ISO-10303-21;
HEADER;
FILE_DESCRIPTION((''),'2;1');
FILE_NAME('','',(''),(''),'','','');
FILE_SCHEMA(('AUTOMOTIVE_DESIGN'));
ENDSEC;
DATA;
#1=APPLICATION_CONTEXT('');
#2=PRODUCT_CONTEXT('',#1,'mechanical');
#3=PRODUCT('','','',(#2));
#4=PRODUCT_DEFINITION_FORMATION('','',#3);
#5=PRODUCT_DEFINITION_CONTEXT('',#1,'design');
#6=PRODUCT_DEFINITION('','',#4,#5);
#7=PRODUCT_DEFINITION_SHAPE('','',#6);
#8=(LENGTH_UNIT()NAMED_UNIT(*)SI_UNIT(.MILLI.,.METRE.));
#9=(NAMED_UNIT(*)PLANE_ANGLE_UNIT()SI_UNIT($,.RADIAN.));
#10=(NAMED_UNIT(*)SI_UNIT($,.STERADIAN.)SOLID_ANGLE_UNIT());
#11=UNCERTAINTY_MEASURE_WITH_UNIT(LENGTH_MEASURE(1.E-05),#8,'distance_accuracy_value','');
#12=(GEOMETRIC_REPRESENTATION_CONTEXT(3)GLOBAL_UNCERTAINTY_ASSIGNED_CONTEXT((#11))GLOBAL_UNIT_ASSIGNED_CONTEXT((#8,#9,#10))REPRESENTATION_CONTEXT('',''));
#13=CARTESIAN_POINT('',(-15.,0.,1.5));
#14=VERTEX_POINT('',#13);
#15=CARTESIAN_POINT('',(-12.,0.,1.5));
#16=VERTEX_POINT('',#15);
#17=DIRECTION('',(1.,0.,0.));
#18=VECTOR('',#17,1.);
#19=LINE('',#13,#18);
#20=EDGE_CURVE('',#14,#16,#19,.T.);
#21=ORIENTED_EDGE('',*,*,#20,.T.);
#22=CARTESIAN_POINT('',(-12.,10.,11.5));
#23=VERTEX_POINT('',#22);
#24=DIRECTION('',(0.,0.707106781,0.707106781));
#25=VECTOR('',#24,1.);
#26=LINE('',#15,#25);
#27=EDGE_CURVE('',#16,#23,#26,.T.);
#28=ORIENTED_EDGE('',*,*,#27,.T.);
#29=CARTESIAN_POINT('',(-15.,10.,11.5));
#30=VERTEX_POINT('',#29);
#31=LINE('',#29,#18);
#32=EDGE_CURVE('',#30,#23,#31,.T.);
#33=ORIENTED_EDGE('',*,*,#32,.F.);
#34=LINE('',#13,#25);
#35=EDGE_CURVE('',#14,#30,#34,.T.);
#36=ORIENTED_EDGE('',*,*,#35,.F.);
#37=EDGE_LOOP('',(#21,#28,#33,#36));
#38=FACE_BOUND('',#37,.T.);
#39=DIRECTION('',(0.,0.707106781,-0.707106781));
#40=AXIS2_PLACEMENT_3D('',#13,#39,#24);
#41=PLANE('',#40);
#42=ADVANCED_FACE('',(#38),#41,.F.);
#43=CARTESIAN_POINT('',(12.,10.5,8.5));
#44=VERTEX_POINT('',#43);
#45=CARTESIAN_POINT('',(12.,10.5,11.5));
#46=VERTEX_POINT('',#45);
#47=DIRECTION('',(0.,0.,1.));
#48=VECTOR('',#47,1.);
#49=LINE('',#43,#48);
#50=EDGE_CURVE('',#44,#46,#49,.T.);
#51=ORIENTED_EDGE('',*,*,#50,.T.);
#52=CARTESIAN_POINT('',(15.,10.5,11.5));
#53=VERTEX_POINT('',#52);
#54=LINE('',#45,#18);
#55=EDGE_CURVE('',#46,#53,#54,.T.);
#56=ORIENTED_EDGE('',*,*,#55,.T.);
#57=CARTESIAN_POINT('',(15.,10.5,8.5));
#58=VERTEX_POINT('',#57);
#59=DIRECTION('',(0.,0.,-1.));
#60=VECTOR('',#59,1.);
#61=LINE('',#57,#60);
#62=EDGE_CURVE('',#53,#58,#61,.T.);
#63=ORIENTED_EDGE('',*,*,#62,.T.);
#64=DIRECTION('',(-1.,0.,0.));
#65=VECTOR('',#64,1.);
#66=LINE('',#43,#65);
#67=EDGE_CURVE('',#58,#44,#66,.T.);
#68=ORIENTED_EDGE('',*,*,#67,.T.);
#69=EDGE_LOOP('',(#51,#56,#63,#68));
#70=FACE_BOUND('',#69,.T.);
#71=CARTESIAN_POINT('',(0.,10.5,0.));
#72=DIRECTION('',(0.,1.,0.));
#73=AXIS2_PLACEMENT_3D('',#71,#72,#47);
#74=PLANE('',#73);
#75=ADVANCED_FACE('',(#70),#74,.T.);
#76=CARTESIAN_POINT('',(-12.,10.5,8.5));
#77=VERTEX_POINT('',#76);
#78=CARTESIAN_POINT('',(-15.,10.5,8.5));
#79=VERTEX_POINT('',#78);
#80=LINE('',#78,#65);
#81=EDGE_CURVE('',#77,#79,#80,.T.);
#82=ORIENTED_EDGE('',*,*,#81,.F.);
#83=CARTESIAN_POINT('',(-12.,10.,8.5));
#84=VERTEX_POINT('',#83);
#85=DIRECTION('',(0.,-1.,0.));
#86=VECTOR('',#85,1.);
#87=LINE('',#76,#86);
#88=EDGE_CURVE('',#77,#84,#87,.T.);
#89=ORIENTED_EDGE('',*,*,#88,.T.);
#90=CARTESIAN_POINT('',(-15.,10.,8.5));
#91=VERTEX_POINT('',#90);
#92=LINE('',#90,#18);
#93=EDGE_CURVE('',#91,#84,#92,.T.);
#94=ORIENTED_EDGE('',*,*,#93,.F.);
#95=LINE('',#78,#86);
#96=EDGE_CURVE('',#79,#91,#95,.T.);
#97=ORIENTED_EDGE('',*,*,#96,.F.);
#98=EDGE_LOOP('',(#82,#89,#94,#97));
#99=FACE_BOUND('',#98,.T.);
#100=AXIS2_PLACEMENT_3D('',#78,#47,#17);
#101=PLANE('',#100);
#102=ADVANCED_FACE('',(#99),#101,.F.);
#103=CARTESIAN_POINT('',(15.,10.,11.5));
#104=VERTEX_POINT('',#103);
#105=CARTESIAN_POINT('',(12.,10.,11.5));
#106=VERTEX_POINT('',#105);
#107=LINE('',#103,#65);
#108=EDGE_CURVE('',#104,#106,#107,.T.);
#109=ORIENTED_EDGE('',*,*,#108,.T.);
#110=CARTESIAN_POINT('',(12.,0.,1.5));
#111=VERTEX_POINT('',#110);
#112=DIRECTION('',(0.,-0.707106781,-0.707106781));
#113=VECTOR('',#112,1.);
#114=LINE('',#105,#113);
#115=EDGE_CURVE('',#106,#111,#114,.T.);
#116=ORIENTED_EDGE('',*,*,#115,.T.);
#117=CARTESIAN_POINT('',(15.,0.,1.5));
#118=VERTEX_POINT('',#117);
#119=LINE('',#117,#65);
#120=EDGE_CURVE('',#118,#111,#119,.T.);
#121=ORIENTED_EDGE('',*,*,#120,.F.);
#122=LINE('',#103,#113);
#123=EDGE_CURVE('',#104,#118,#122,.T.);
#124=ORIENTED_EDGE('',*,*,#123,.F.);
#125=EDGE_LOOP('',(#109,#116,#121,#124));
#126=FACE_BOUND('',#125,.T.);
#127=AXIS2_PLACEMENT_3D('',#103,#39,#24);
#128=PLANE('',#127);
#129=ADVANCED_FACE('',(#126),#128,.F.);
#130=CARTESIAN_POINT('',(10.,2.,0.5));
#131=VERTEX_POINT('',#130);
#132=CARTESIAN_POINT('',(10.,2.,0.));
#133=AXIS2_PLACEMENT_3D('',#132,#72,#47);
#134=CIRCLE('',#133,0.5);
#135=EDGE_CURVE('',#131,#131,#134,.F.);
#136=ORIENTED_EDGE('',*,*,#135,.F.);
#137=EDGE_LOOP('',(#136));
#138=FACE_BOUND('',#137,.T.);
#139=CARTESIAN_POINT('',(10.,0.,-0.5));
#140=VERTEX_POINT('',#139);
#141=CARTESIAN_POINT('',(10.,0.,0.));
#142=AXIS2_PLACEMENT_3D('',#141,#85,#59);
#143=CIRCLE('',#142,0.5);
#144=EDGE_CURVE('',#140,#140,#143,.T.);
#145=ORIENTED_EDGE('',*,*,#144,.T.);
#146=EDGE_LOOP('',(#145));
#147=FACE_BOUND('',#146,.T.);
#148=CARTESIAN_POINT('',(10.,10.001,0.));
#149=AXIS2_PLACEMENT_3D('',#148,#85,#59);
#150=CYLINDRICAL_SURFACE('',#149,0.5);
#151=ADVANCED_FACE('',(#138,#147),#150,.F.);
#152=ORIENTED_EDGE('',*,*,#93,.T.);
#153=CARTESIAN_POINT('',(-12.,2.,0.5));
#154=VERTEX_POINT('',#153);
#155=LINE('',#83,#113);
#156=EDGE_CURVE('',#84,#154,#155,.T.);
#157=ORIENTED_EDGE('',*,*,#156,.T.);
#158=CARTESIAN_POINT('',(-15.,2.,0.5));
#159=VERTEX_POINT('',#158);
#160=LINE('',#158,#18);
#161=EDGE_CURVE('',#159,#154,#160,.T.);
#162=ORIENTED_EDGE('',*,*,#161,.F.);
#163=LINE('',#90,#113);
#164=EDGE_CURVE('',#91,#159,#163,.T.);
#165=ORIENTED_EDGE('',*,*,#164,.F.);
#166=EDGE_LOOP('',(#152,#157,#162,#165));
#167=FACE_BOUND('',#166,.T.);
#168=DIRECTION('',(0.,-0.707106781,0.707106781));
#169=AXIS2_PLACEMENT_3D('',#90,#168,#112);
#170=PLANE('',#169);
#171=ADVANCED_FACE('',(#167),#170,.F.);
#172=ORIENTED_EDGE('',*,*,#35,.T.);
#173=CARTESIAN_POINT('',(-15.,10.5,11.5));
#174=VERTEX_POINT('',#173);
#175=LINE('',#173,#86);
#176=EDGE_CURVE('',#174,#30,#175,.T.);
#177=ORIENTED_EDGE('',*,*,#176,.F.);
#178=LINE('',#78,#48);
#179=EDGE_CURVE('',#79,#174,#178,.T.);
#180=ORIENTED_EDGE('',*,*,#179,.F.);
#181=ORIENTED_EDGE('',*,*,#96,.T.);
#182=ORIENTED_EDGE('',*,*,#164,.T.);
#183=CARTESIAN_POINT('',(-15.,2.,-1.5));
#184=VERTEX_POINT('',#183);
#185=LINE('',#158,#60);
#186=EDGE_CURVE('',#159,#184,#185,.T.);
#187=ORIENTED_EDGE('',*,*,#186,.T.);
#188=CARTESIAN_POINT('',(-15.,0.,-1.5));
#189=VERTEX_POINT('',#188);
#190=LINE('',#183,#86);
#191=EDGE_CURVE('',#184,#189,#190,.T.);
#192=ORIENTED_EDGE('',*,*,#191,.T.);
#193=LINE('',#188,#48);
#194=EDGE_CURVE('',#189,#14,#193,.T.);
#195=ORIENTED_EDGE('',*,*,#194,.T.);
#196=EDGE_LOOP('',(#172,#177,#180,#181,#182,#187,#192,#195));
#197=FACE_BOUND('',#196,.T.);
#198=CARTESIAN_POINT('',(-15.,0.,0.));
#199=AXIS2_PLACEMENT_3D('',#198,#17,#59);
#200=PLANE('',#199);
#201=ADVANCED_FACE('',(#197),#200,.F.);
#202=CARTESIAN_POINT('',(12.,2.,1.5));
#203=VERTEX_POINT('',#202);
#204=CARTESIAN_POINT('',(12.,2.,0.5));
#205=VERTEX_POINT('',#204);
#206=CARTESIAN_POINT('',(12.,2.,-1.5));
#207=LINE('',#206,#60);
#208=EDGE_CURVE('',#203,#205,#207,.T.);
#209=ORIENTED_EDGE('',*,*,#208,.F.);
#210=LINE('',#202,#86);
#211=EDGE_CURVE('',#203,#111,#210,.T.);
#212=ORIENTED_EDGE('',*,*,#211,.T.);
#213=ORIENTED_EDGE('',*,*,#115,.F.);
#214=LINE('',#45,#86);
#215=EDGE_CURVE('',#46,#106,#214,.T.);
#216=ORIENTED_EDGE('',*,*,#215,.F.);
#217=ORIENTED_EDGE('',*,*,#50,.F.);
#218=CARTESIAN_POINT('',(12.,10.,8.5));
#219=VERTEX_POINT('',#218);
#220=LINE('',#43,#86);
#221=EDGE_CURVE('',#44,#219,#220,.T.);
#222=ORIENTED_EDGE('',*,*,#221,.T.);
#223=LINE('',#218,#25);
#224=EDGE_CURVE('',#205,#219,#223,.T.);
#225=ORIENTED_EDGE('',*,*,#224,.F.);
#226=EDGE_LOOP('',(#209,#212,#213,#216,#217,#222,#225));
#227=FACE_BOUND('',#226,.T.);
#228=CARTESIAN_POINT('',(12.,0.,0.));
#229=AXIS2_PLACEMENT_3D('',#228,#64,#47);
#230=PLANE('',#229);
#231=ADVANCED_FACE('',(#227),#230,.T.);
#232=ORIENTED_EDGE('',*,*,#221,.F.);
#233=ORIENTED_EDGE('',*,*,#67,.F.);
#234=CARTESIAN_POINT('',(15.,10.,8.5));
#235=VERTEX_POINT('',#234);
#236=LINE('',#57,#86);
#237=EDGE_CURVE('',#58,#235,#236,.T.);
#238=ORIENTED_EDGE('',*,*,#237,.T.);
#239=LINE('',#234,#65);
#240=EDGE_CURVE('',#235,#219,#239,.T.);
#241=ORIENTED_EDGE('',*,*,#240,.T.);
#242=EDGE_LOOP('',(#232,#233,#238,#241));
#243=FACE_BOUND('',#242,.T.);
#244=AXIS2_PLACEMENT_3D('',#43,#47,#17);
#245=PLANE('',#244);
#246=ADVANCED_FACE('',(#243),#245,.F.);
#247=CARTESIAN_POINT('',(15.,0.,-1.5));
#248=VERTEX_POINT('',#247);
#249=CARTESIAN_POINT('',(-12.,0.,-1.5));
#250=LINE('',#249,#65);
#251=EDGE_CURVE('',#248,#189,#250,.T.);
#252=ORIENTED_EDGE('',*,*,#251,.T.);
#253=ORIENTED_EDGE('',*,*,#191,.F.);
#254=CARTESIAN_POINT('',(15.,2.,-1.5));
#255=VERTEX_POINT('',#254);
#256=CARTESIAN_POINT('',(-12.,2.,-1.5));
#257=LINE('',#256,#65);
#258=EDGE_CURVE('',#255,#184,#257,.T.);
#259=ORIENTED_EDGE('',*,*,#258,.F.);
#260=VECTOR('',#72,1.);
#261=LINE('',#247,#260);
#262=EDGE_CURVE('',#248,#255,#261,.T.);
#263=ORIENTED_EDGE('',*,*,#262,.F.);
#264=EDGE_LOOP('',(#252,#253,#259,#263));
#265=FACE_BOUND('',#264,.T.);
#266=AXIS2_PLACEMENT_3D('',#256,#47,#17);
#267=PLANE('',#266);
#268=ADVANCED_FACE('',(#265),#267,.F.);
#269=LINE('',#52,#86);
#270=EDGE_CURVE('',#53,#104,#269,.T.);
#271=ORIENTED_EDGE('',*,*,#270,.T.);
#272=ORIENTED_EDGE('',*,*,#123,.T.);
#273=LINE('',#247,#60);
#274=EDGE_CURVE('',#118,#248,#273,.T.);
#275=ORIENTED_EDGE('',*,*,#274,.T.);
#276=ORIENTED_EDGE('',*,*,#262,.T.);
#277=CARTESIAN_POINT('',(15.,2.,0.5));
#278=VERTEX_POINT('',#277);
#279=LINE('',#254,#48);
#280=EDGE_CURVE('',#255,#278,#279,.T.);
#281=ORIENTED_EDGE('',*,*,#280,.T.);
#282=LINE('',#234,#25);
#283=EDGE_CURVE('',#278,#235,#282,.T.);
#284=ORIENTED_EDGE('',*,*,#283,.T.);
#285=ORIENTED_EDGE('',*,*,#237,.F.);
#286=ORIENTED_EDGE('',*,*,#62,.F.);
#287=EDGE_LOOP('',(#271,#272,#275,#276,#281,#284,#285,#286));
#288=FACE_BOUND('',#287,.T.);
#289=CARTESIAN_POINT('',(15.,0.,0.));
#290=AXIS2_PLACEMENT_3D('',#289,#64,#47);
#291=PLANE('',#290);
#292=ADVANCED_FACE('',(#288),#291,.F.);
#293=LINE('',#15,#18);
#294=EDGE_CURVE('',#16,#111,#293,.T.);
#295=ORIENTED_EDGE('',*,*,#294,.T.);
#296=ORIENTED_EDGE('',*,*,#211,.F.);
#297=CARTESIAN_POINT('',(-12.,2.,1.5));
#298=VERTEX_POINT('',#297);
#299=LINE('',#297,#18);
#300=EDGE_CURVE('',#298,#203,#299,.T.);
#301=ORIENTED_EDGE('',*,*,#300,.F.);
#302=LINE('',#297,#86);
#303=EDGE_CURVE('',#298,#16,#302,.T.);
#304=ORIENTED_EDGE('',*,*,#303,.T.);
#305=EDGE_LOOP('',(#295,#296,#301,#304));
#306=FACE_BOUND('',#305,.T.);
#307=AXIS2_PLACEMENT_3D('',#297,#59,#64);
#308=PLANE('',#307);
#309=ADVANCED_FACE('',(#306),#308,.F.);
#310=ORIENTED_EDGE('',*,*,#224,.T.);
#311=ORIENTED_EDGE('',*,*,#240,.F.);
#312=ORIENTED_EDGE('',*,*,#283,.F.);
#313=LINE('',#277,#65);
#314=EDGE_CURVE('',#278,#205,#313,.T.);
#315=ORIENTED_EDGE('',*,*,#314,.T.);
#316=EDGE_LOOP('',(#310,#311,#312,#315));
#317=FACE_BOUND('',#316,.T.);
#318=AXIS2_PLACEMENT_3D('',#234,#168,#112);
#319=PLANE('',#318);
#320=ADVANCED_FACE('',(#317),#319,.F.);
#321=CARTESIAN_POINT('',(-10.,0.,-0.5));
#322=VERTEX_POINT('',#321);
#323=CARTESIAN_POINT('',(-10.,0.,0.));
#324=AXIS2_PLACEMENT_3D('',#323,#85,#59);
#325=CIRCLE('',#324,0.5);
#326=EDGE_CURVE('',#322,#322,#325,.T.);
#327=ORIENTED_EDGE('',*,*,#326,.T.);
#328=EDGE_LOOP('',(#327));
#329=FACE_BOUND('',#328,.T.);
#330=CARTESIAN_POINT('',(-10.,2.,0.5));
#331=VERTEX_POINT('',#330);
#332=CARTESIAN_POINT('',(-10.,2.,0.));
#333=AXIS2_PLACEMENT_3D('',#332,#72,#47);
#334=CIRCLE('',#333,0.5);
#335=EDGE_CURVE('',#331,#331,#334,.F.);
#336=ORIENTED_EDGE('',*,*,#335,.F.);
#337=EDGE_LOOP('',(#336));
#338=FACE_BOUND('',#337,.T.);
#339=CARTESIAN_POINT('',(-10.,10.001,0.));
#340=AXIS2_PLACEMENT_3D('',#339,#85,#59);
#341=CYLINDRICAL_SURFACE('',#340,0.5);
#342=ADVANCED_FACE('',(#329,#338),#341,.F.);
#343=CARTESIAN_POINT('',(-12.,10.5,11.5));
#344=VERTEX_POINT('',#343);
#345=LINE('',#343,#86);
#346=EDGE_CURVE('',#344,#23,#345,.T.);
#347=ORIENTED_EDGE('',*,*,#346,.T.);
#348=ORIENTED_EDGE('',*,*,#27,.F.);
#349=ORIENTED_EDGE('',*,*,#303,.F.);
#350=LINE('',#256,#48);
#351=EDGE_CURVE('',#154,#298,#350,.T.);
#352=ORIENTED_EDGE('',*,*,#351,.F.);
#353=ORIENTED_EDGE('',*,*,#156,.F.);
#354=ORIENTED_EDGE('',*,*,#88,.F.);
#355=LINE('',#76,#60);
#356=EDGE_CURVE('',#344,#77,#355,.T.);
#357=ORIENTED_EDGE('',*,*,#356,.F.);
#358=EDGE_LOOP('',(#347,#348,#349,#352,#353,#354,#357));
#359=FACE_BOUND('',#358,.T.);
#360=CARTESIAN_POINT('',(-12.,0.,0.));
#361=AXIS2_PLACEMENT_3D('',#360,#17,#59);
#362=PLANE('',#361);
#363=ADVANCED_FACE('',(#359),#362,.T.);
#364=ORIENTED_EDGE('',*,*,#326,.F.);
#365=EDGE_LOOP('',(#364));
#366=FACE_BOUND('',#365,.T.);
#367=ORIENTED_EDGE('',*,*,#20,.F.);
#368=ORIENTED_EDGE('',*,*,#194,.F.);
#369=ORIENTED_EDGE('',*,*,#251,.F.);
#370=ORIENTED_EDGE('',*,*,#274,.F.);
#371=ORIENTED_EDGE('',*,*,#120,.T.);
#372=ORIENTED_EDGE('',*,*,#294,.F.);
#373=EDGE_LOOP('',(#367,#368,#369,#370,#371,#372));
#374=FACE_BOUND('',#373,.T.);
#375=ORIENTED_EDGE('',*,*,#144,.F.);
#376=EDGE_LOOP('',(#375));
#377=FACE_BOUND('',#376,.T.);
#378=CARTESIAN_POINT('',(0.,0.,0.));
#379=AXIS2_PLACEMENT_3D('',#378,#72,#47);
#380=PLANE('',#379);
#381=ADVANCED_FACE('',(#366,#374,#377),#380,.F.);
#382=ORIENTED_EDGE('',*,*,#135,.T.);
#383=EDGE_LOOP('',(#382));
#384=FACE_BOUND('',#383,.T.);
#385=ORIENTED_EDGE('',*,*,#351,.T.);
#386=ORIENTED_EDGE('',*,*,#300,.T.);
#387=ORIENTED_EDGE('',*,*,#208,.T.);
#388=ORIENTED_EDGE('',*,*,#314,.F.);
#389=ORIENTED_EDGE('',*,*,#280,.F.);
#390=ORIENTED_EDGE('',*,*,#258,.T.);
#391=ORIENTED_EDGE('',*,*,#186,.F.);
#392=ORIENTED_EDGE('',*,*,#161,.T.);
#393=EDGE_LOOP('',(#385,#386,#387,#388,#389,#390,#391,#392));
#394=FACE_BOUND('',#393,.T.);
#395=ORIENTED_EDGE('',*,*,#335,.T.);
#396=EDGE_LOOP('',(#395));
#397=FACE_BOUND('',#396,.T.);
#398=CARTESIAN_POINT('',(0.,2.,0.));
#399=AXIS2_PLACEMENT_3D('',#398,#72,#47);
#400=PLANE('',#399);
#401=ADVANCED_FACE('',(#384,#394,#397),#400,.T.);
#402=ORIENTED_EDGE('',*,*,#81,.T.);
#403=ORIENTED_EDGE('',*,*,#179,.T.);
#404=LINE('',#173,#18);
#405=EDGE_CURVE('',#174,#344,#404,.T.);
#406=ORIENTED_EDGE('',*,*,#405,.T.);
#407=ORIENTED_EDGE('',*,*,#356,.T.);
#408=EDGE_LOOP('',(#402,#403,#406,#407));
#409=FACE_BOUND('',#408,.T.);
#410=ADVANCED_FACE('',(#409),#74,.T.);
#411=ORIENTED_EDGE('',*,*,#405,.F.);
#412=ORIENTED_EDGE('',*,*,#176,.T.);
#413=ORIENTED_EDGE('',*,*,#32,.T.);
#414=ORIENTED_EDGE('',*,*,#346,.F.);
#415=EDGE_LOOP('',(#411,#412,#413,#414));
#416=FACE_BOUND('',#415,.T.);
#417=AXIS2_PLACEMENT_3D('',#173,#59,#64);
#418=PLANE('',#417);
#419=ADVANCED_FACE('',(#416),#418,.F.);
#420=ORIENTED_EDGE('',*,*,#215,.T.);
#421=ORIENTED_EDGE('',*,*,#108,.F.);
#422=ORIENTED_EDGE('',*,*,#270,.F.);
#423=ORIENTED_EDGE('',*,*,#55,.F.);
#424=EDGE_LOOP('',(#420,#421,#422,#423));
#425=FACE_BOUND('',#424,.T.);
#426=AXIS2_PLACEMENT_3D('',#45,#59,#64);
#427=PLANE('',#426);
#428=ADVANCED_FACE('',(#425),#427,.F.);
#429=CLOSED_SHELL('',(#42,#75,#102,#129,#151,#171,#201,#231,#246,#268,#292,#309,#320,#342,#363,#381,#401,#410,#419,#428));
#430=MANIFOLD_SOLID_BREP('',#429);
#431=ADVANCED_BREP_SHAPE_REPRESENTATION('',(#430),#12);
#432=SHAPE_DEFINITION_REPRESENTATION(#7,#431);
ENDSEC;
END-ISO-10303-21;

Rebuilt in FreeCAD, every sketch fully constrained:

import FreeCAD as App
import Part
import Sketcher
from FreeCAD import Vector
Q = App.Units.Quantity


def add_polygon(sketch, points):
    """Adds a closed chain of lines whose ends are joined by coincident constraints."""
    first, n = sketch.GeometryCount, len(points)
    for a, b in zip(points, points[1:] + points[:1]):
        sketch.addGeometry(Part.LineSegment(App.Vector(*a, 0), App.Vector(*b, 0)), False)
    for i in range(n):
        sketch.addConstraint(Sketcher.Constraint("Coincident", first + i, 2, first + (i + 1) % n, 1))

doc = App.newDocument("Part")
body = doc.addObject("PartDesign::Body", "Body")

# Sketch on XZ plane
sketch1 = body.newObject("Sketcher::SketchObject", "Sketch")
sketch1.AttachmentSupport = (doc.getObject("XZ_Plane"), [""])
sketch1.MapMode = "FlatFace"
add_polygon(sketch1, [(-12, -1.5), (-12, 1.5), (12, 1.5), (12, -1.5)])  # lines 0-3
sketch1.addConstraint(Sketcher.Constraint("Vertical", 0))
sketch1.addConstraint(Sketcher.Constraint("Horizontal", 1))
sketch1.addConstraint(Sketcher.Constraint("Vertical", 2))
sketch1.addConstraint(Sketcher.Constraint("Horizontal", 3))
sketch1.addConstraint(Sketcher.Constraint("Symmetric", 0, 2, 2, 2, -1, 1))
sketch1.addConstraint(Sketcher.Constraint("DistanceX", 1, 1, 1, 2, Q("24 mm")))
sketch1.addConstraint(Sketcher.Constraint("DistanceY", 0, 1, 0, 2, Q("3 mm")))
pad1 = body.newObject("PartDesign::Pad", "Pad")
pad1.Profile = sketch1
pad1.Length = 2
pad1.Reversed = True

# Sketch on YZ plane
sketch2 = body.newObject("Sketcher::SketchObject", "Sketch001")
sketch2.AttachmentSupport = (doc.getObject("YZ_Plane"), [""])
sketch2.MapMode = "FlatFace"
sketch2.AttachmentOffset = App.Placement(Vector(0, 0, 12), App.Rotation())
add_polygon(sketch2, [(10, 11.5), (0, 1.5), (0, -1.5), (2, -1.5), (2, 0.5), (10, 8.5)])  # lines 0-5
sketch2.addConstraint(Sketcher.Constraint("Vertical", 1))
sketch2.addConstraint(Sketcher.Constraint("Horizontal", 2))
sketch2.addConstraint(Sketcher.Constraint("Vertical", 3))
sketch2.addConstraint(Sketcher.Constraint("Vertical", 5))
sketch2.addConstraint(Sketcher.Constraint("Symmetric", 0, 2, 1, 2, -1, 1))
sketch2.addConstraint(Sketcher.Constraint("Parallel", 0, 4))
sketch2.addConstraint(Sketcher.Constraint("Equal", 2, 3))
sketch2.addConstraint(Sketcher.Constraint("Equal", 1, 5))
sketch2.addConstraint(Sketcher.Constraint("DistanceX", 2, 1, 2, 2, Q("2 mm")))
sketch2.addConstraint(Sketcher.Constraint("DistanceY", 1, 2, 1, 1, Q("3 mm")))
sketch2.addConstraint(Sketcher.Constraint("DistanceX", -1, 1, 4, 2, Q("10 mm")))
pad2 = body.newObject("PartDesign::Pad", "Pad001")
pad2.Profile = sketch2
pad2.Length = 3

# Sketch on YZ plane
sketch3 = body.newObject("Sketcher::SketchObject", "Sketch002")
sketch3.AttachmentSupport = (doc.getObject("YZ_Plane"), [""])
sketch3.MapMode = "FlatFace"
sketch3.AttachmentOffset = App.Placement(Vector(0, 0, -12), App.Rotation())
add_polygon(sketch3, [(0, 1.5), (10, 11.5), (10, 8.5), (2, 0.5), (2, -1.5), (0, -1.5)])  # lines 0-5
sketch3.addConstraint(Sketcher.Constraint("Vertical", 1))
sketch3.addConstraint(Sketcher.Constraint("Vertical", 3))
sketch3.addConstraint(Sketcher.Constraint("Horizontal", 4))
sketch3.addConstraint(Sketcher.Constraint("Vertical", 5))
sketch3.addConstraint(Sketcher.Constraint("Symmetric", 4, 2, 5, 2, -1, 1))
sketch3.addConstraint(Sketcher.Constraint("Parallel", 0, 2))
sketch3.addConstraint(Sketcher.Constraint("Equal", 4, 3))
sketch3.addConstraint(Sketcher.Constraint("Equal", 1, 5))
sketch3.addConstraint(Sketcher.Constraint("DistanceX", 4, 2, 4, 1, Q("2 mm")))
sketch3.addConstraint(Sketcher.Constraint("DistanceY", 1, 2, 1, 1, Q("3 mm")))
sketch3.addConstraint(Sketcher.Constraint("DistanceX", -1, 1, 0, 2, Q("10 mm")))
pad3 = body.newObject("PartDesign::Pad", "Pad002")
pad3.Profile = sketch3
pad3.Length = 3
pad3.Reversed = True

# Sketch on XZ plane
sketch4 = body.newObject("Sketcher::SketchObject", "Sketch003")
sketch4.AttachmentSupport = (doc.getObject("XZ_Plane"), [""])
sketch4.MapMode = "FlatFace"
sketch4.addGeometry(Part.Circle(Vector(-10, 0, 0), Vector(0, 0, 1), 0.5), False)
sketch4.addConstraint(Sketcher.Constraint("PointOnObject", 0, 3, -1))
sketch4.addConstraint(Sketcher.Constraint("Diameter", 0, Q("1 mm")))
sketch4.addConstraint(Sketcher.Constraint("DistanceX", 0, 3, -1, 1, Q("10 mm")))
pocket1 = body.newObject("PartDesign::Pocket", "Pocket")
pocket1.Profile = sketch4
pocket1.Type = "UpToFirst"

# Sketch on XZ plane
sketch5 = body.newObject("Sketcher::SketchObject", "Sketch004")
sketch5.AttachmentSupport = (doc.getObject("XZ_Plane"), [""])
sketch5.MapMode = "FlatFace"
sketch5.addGeometry(Part.Circle(Vector(10, 0, 0), Vector(0, 0, 1), 0.5), False)
sketch5.addConstraint(Sketcher.Constraint("PointOnObject", 0, 3, -1))
sketch5.addConstraint(Sketcher.Constraint("Diameter", 0, Q("1 mm")))
sketch5.addConstraint(Sketcher.Constraint("DistanceX", -1, 1, 0, 3, Q("10 mm")))
pocket2 = body.newObject("PartDesign::Pocket", "Pocket001")
pocket2.Profile = sketch5
pocket2.Type = "UpToFirst"

# Sketch on XZ plane
sketch6 = body.newObject("Sketcher::SketchObject", "Sketch005")
sketch6.AttachmentSupport = (doc.getObject("XZ_Plane"), [""])
sketch6.MapMode = "FlatFace"
sketch6.AttachmentOffset = App.Placement(Vector(0, 0, -10), App.Rotation())
add_polygon(sketch6, [(-15, 8.5), (-15, 11.5), (-12, 11.5), (-12, 8.5)])  # lines 0-3
add_polygon(sketch6, [(12, 8.5), (12, 11.5), (15, 11.5), (15, 8.5)])  # lines 4-7
sketch6.addConstraint(Sketcher.Constraint("Vertical", 0))
sketch6.addConstraint(Sketcher.Constraint("Horizontal", 1))
sketch6.addConstraint(Sketcher.Constraint("Vertical", 2))
sketch6.addConstraint(Sketcher.Constraint("Horizontal", 3))
sketch6.addConstraint(Sketcher.Constraint("Vertical", 4))
sketch6.addConstraint(Sketcher.Constraint("Horizontal", 5))
sketch6.addConstraint(Sketcher.Constraint("Vertical", 6))
sketch6.addConstraint(Sketcher.Constraint("Horizontal", 7))
sketch6.addConstraint(Sketcher.Constraint("Symmetric", 1, 2, 4, 2, -2))
sketch6.addConstraint(Sketcher.Constraint("Symmetric", 3, 2, 6, 2, -2))
sketch6.addConstraint(Sketcher.Constraint("Equal", 7, 0))
sketch6.addConstraint(Sketcher.Constraint("DistanceX", 1, 1, 1, 2, Q("3 mm")))
sketch6.addConstraint(Sketcher.Constraint("DistanceX", 0, 2, -1, 1, Q("15 mm")))
sketch6.addConstraint(Sketcher.Constraint("DistanceY", -1, 1, 0, 2, Q("11.5 mm")))
pad4 = body.newObject("PartDesign::Pad", "Pad003")
pad4.Profile = sketch6
pad4.Length = 0.5
pad4.Reversed = True

doc.recompute()
